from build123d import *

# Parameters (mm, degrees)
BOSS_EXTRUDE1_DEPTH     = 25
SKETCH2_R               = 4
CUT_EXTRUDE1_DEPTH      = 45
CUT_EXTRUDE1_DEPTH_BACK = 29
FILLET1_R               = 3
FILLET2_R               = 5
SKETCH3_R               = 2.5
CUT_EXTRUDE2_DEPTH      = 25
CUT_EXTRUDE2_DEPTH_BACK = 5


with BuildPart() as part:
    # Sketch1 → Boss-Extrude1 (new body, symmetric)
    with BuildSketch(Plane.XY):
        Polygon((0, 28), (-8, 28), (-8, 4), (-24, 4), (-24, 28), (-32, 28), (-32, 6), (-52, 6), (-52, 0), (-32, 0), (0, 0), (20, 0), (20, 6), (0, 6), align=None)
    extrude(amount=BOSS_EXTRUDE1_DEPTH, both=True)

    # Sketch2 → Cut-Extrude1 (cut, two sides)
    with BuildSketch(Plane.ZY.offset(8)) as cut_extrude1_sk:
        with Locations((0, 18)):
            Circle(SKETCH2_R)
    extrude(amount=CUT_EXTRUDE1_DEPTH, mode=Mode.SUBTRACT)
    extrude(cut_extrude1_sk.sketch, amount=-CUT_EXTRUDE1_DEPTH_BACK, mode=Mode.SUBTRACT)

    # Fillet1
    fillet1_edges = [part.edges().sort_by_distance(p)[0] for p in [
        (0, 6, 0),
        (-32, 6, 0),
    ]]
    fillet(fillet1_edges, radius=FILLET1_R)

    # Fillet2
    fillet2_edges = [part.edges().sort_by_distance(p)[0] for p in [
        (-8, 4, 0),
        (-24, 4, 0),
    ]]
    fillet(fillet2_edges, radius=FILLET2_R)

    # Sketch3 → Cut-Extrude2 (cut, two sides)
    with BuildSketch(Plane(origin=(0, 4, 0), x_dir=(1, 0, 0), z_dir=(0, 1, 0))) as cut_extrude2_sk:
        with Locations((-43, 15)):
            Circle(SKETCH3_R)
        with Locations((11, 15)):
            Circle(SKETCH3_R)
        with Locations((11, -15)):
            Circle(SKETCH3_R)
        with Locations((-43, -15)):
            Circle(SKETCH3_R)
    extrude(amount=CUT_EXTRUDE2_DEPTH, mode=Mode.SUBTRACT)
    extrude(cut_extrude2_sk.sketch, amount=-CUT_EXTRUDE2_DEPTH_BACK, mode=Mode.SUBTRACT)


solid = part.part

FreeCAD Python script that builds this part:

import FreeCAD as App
import Part
import Sketcher
Q = App.Units.Quantity


def edges_at(feature, points):
    """Names of the edges that pass closest to the given points."""
    edges = feature.Shape.Edges
    near = lambda p: min(range(len(edges)), key=lambda i: edges[i].distToShape(Part.Vertex(*p))[0])
    return sorted({f"Edge{near(p) + 1}" for p in points})


def add_polygon(sketch, points):
    """Adds a closed chain of lines whose ends are joined by coincident constraints."""
    first, n = sketch.GeometryCount, len(points)
    for a, b in zip(points, points[1:] + points[:1]):
        sketch.addGeometry(Part.LineSegment(App.Vector(*a, 0), App.Vector(*b, 0)), False)
    for i in range(n):
        sketch.addConstraint(Sketcher.Constraint("Coincident", first + i, 2, first + (i + 1) % n, 1))

doc = App.newDocument("Part")
body = doc.addObject("PartDesign::Body", "Body")

# Sketch on XY plane
sketch1 = doc.addObject("Sketcher::SketchObject", "Sketch")
body.addObject(sketch1)
sketch1.AttachmentSupport = (doc.XY_Plane, [""])
sketch1.MapMode = "FlatFace"
add_polygon(sketch1, [(0, 28), (-8, 28), (-8, 4), (-24, 4), (-24, 28), (-32, 28), (-32, 6), (-52, 6), (-52, 0), (20, 0), (20, 6), (0, 6)])  # lines 0-11
sketch1.addConstraint(Sketcher.Constraint("Horizontal", 0))
sketch1.addConstraint(Sketcher.Constraint("Vertical", 1))
sketch1.addConstraint(Sketcher.Constraint("Horizontal", 2))
sketch1.addConstraint(Sketcher.Constraint("Vertical", 3))
sketch1.addConstraint(Sketcher.Constraint("Horizontal", 4))
sketch1.addConstraint(Sketcher.Constraint("Vertical", 5))
sketch1.addConstraint(Sketcher.Constraint("Horizontal", 6))
sketch1.addConstraint(Sketcher.Constraint("Vertical", 7))
sketch1.addConstraint(Sketcher.Constraint("Horizontal", 8))
sketch1.addConstraint(Sketcher.Constraint("Vertical", 9))
sketch1.addConstraint(Sketcher.Constraint("Horizontal", 10))
sketch1.addConstraint(Sketcher.Constraint("Vertical", 11))
sketch1.addConstraint(Sketcher.Constraint("PointOnObject", 7, 2, -1))
sketch1.addConstraint(Sketcher.Constraint("PointOnObject", 10, 2, -2))
sketch1.addConstraint(Sketcher.Constraint("Horizontal", 0, 2, 3, 2))
sketch1.addConstraint(Sketcher.Constraint("Horizontal", 6, 2, 9, 2))
sketch1.addConstraint(Sketcher.Constraint("Equal", 0, 4))
sketch1.addConstraint(Sketcher.Constraint("Equal", 6, 10))
sketch1.addConstraint(Sketcher.Constraint("DistanceX", 0, 2, 0, 1, Q("8 mm")))
sketch1.addConstraint(Sketcher.Constraint("DistanceX", 2, 2, 2, 1, Q("16 mm")))
sketch1.addConstraint(Sketcher.Constraint("DistanceX", 6, 2, 6, 1, Q("20 mm")))
sketch1.addConstraint(Sketcher.Constraint("DistanceY", 1, 2, 1, 1, Q("24 mm")))
sketch1.addConstraint(Sketcher.Constraint("DistanceY", 5, 2, 5, 1, Q("22 mm")))
sketch1.addConstraint(Sketcher.Constraint("DistanceY", 7, 2, 7, 1, Q("6 mm")))
pad1 = doc.addObject("PartDesign::Pad", "Pad")
body.addObject(pad1)
pad1.Profile = sketch1
pad1.Length = 50
pad1.Midplane = True

# Sketch on YZ plane
sketch2 = doc.addObject("Sketcher::SketchObject", "Sketch001")
body.addObject(sketch2)
sketch2.AttachmentSupport = (doc.YZ_Plane, [""])
sketch2.MapMode = "FlatFace"
sketch2.AttachmentOffset = App.Placement(App.Vector(0, 0, -8), App.Rotation())
sketch2.addGeometry(Part.Circle(App.Vector(18, 0, 0), App.Vector(0, 0, 1), 4), False)
sketch2.addConstraint(Sketcher.Constraint("PointOnObject", 0, 3, -1))
sketch2.addConstraint(Sketcher.Constraint("Diameter", 0, Q("8 mm")))
sketch2.addConstraint(Sketcher.Constraint("DistanceX", -1, 1, 0, 3, Q("18 mm")))
pocket1 = doc.addObject("PartDesign::Pocket", "Pocket")
body.addObject(pocket1)
pocket1.Profile = sketch2
pocket1.Type = "ThroughAll"
pocket1.Midplane = True
doc.recompute()

fillet = doc.addObject("PartDesign::Fillet", "Fillet")
body.addObject(fillet)
fillet.Base = (pocket1, edges_at(pocket1, [(0, 6, 0), (-32, 6, 0)]))
fillet.Radius = 3
doc.recompute()

fillet2 = doc.addObject("PartDesign::Fillet", "Fillet001")
body.addObject(fillet2)
fillet2.Base = (fillet, edges_at(fillet, [(-8, 4, 0), (-24, 4, 0)]))
fillet2.Radius = 5

# Sketch on XZ plane
sketch3 = doc.addObject("Sketcher::SketchObject", "Sketch002")
body.addObject(sketch3)
sketch3.AttachmentSupport = (doc.XZ_Plane, [""])
sketch3.MapMode = "FlatFace"
sketch3.AttachmentOffset = App.Placement(App.Vector(0, 0, -4), App.Rotation())
sketch3.addGeometry(Part.Circle(App.Vector(-43, -15, 0), App.Vector(0, 0, 1), 2.5), False)
sketch3.addGeometry(Part.Circle(App.Vector(11, -15, 0), App.Vector(0, 0, 1), 2.5), False)
sketch3.addGeometry(Part.Circle(App.Vector(11, 15, 0), App.Vector(0, 0, 1), 2.5), False)
sketch3.addGeometry(Part.Circle(App.Vector(-43, 15, 0), App.Vector(0, 0, 1), 2.5), False)
sketch3.addConstraint(Sketcher.Constraint("Equal", 0, 1))
sketch3.addConstraint(Sketcher.Constraint("Equal", 1, 2))
sketch3.addConstraint(Sketcher.Constraint("Equal", 2, 3))
sketch3.addConstraint(Sketcher.Constraint("Symmetric", 1, 3, 2, 3, -1))
sketch3.addConstraint(Sketcher.Constraint("Symmetric", 0, 3, 3, 3, -1))
sketch3.addConstraint(Sketcher.Constraint("Horizontal", 0, 3, 1, 3))
sketch3.addConstraint(Sketcher.Constraint("Diameter", 0, Q("5 mm")))
sketch3.addConstraint(Sketcher.Constraint("DistanceX", 0, 3, -1, 1, Q("43 mm")))
sketch3.addConstraint(Sketcher.Constraint("DistanceY", 0, 3, -1, 1, Q("15 mm")))
sketch3.addConstraint(Sketcher.Constraint("DistanceX", -1, 1, 1, 3, Q("11 mm")))
pocket2 = doc.addObject("PartDesign::Pocket", "Pocket001")
body.addObject(pocket2)
pocket2.Profile = sketch3
pocket2.Type = "ThroughAll"
pocket2.Midplane = True

doc.recompute()
